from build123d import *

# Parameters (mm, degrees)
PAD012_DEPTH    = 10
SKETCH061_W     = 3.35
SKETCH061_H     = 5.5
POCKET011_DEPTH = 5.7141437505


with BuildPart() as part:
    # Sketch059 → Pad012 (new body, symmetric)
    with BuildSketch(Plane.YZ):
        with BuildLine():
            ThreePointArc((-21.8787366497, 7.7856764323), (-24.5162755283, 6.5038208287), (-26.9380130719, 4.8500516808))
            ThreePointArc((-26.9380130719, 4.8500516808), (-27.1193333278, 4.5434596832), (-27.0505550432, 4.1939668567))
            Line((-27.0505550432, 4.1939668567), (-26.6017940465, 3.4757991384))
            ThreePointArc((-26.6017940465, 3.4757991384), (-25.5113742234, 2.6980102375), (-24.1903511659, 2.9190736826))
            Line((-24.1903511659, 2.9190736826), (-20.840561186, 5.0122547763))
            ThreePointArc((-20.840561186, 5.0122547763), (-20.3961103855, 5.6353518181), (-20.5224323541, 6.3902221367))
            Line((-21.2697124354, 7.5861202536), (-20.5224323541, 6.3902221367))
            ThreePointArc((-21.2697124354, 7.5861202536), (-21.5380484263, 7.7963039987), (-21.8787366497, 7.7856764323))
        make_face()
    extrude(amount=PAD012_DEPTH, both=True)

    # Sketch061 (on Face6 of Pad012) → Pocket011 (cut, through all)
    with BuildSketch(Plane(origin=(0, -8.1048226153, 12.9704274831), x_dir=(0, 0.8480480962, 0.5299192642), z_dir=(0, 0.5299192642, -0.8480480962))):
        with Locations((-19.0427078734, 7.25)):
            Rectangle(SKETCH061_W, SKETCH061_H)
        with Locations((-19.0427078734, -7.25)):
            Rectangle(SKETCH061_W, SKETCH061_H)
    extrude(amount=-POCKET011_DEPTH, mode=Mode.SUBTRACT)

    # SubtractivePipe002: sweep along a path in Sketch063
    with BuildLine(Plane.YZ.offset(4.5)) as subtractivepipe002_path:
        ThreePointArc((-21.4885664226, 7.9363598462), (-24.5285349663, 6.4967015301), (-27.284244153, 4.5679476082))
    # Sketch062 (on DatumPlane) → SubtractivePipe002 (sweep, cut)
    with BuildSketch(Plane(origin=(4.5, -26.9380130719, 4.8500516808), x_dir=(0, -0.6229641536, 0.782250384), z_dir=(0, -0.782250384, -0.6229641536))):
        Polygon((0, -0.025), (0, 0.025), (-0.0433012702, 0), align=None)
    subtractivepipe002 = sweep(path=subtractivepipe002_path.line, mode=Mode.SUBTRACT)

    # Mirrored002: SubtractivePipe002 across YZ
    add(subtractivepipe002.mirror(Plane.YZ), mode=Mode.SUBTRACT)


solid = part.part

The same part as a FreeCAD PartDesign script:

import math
import FreeCAD as App
import Part
import Sketcher

V = App.Vector
Q = App.Units.Quantity

doc = App.newDocument("Part")
body = doc.addObject("PartDesign::Body", "Body")

sketch1 = doc.addObject("Sketcher::SketchObject", "Sketch")
body.addObject(sketch1)
sketch1.AttachmentSupport = (doc.YZ_Plane, [""])
sketch1.MapMode = "FlatFace"
sketch1.addGeometry([
    Part.ArcOfCircle(Part.Circle(V(-14.5, -10.8, 0), V(0, 0, 1), 20), math.radians(111.72), math.radians(128.53)),
    Part.ArcOfCircle(Part.Circle(V(-26.6, 4.5, 0), V(0, 0, 1), 0.5), math.radians(129), math.radians(212)),
    Part.LineSegment(V(-27.1, 4.2, 0), V(-26.6, 3.5, 0)),
    Part.ArcOfCircle(Part.Circle(V(-25.1, 4.4, 0), V(0, 0, 1), 1.8), math.radians(-148), math.radians(-58)),
    Part.LineSegment(V(-24.2, 2.9, 0), V(-20.8, 5, 0)),
    Part.ArcOfCircle(Part.Circle(V(-21.4, 5.9, 0), V(0, 0, 1), 1), math.radians(-58), math.radians(32)),
    Part.LineSegment(V(-20.5, 6.4, 0), V(-21.3, 7.6, 0)),
    Part.ArcOfCircle(Part.Circle(V(-21.7, 7.3, 0), V(0, 0, 1), 0.5), math.radians(32), math.radians(112)),
], False)
sketch1.addConstraint([
    Sketcher.Constraint("Tangent", 0, 2, 1, 1),
    Sketcher.Constraint("Tangent", 1, 2, 2, 1),
    Sketcher.Constraint("Tangent", 2, 2, 3, 1),
    Sketcher.Constraint("Tangent", 3, 2, 4, 1),
    Sketcher.Constraint("Tangent", 4, 2, 5, 1),
    Sketcher.Constraint("Tangent", 5, 2, 6, 1),
    Sketcher.Constraint("Tangent", 6, 2, 7, 1),
    Sketcher.Constraint("Tangent", 7, 2, 0, 1),
    Sketcher.Constraint("Equal", 1, 7),
    Sketcher.Constraint("Perpendicular", 2, 4),
    Sketcher.Constraint("Perpendicular", 4, 6),
    Sketcher.Constraint("Radius", 0, Q("20 mm")),
    Sketcher.Constraint("Radius", 5, Q("1 mm")),
    Sketcher.Constraint("Radius", 1, Q("0.5 mm")),
    Sketcher.Constraint("Angle", 2, Q("-58 deg")),
    Sketcher.Constraint("Radius", 3, Q("1.75 mm")),
    Sketcher.Constraint("Distance", 4, Q("3.95 mm")),
    Sketcher.Constraint("DistanceX", 7, 2, 7, 3, Q("0.185 mm")),
    Sketcher.Constraint("DistanceY", -1, 1, 2, 2, Q("3.475799 mm")),
    Sketcher.Constraint("DistanceY", 5, 2, 6, 2, Q("1.195898 mm")),
    Sketcher.Constraint("DistanceX", 0, 3, -1, 1, Q("14.47873 mm")),
])
pad1 = doc.addObject("PartDesign::Pad", "Pad")
body.addObject(pad1)
pad1.Profile = sketch1
pad1.Length = 20
pad1.Midplane = True

sketch2 = doc.addObject("Sketcher::SketchObject", "Sketch001")
body.addObject(sketch2)
sketch2.Placement = App.Placement(V(0, -8.104823, 12.970427), App.Rotation(V(0, 0.848048096, 0.529919264), V(0.999999999, 0, 0), V(0, 0.529919264, -0.848048096), "ZXY"))
sketch2.addGeometry([
    Part.LineSegment(V(-20.7, 10, 0), V(-20.7, 4.5, 0)),
    Part.LineSegment(V(-20.7, 4.5, 0), V(-17.4, 4.5, 0)),
    Part.LineSegment(V(-17.4, 4.5, 0), V(-17.4, 10, 0)),
    Part.LineSegment(V(-17.4, 10, 0), V(-20.7, 10, 0)),
    Part.LineSegment(V(-20.7, -4.5, 0), V(-20.7, -10, 0)),
    Part.LineSegment(V(-20.7, -10, 0), V(-17.4, -10, 0)),
    Part.LineSegment(V(-17.4, -10, 0), V(-17.4, -4.5, 0)),
    Part.LineSegment(V(-17.4, -4.5, 0), V(-20.7, -4.5, 0)),
], False)
sketch2.addConstraint([
    Sketcher.Constraint("Coincident", 0, 2, 1, 1),
    Sketcher.Constraint("Coincident", 1, 2, 2, 1),
    Sketcher.Constraint("Coincident", 2, 2, 3, 1),
    Sketcher.Constraint("Coincident", 3, 2, 0, 1),
    Sketcher.Constraint("Coincident", 4, 2, 5, 1),
    Sketcher.Constraint("Coincident", 5, 2, 6, 1),
    Sketcher.Constraint("Coincident", 6, 2, 7, 1),
    Sketcher.Constraint("Coincident", 7, 2, 4, 1),
    Sketcher.Constraint("Vertical", 0),
    Sketcher.Constraint("Horizontal", 1),
    Sketcher.Constraint("Vertical", 2),
    Sketcher.Constraint("Horizontal", 3),
    Sketcher.Constraint("Vertical", 4),
    Sketcher.Constraint("Horizontal", 5),
    Sketcher.Constraint("Vertical", 6),
    Sketcher.Constraint("Horizontal", 7),
    Sketcher.Constraint("Symmetric", 3, 2, 4, 2, -1),
    Sketcher.Constraint("Symmetric", 1, 2, 6, 2, -1),
    Sketcher.Constraint("DistanceY", 0, 2, 0, 1, Q("5.5 mm")),
    Sketcher.Constraint("DistanceY", -1, 1, 2, 2, Q("10 mm")),
    Sketcher.Constraint("DistanceX", 1, 1, 1, 2, Q("3.35 mm")),
    Sketcher.Constraint("DistanceX", 0, 2, -1, 1, Q("20.717708 mm")),
])
pocket1 = doc.addObject("PartDesign::Pocket", "Pocket")
body.addObject(pocket1)
pocket1.Profile = sketch2
pocket1.Type = "ThroughAll"

sketch3 = doc.addObject("Sketcher::SketchObject", "Sketch002")
body.addObject(sketch3)
sketch3.Placement = App.Placement(V(4.5, -26.938013, 4.850052), App.Rotation(V(0, -0.622964154, 0.782250384), V(-1, 0, 0), V(0, -0.782250384, -0.622964154), "ZXY"))
sketch3.addGeometry([
    Part.LineSegment(V(0, -0.025, 0), V(0, 0.025, 0)),
    Part.LineSegment(V(0, 0.025, 0), V(-0.043, 0, 0)),
    Part.LineSegment(V(-0.043, 0, 0), V(0, -0.025, 0)),
], False)
sketch3.addConstraint([
    Sketcher.Constraint("Coincident", 0, 2, 1, 1),
    Sketcher.Constraint("Coincident", 1, 2, 2, 1),
    Sketcher.Constraint("Coincident", 2, 2, 0, 1),
    Sketcher.Constraint("Vertical", 0),
    Sketcher.Constraint("Symmetric", 0, 2, 2, 2, -1, 1),
    Sketcher.Constraint("PointOnObject", 1, 2, -1),
    Sketcher.Constraint("Angle", 1, Q("-150 deg")),
    Sketcher.Constraint("DistanceY", 0, 1, 0, 2, Q("0.05 mm")),
])

sketch4 = doc.addObject("Sketcher::SketchObject", "Sketch003")
body.addObject(sketch4)
sketch4.AttachmentSupport = (doc.YZ_Plane, [""])
sketch4.MapMode = "FlatFace"
sketch4.AttachmentOffset = App.Placement(V(0, 0, 4.5), App.Rotation())
sketch4.addGeometry(Part.ArcOfCircle(Part.Circle(V(-14, -11, 0), V(0, 0, 1), 20), math.radians(110.52), math.radians(129.81)), False)
sketch4.addConstraint([
    Sketcher.Constraint("Radius", 0, Q("20 mm")),
    Sketcher.Constraint("DistanceX", 0, 3, -1, 1, Q("14.47873 mm")),
    Sketcher.Constraint("DistanceY", -1, 1, 0, 1, Q("7.93636 mm")),
    Sketcher.Constraint("DistanceY", 0, 3, -1, 1, Q("10.794956 mm")),
    Sketcher.Constraint("DistanceX", 0, 2, -1, 1, Q("27.284244 mm")),
])
doc.recompute()

subtractivepipe = doc.addObject("PartDesign::SubtractivePipe", "SubtractivePipe")
body.addObject(subtractivepipe)
subtractivepipe.Profile = sketch3
subtractivepipe.Spine = (sketch4, ["Edge1"])
doc.recompute()

mirrored = doc.addObject("PartDesign::Mirrored", "Mirrored")
body.addObject(mirrored)
mirrored.Originals = [subtractivepipe]
mirrored.MirrorPlane = (doc.YZ_Plane, [""])
body.Tip = mirrored

doc.recompute()
